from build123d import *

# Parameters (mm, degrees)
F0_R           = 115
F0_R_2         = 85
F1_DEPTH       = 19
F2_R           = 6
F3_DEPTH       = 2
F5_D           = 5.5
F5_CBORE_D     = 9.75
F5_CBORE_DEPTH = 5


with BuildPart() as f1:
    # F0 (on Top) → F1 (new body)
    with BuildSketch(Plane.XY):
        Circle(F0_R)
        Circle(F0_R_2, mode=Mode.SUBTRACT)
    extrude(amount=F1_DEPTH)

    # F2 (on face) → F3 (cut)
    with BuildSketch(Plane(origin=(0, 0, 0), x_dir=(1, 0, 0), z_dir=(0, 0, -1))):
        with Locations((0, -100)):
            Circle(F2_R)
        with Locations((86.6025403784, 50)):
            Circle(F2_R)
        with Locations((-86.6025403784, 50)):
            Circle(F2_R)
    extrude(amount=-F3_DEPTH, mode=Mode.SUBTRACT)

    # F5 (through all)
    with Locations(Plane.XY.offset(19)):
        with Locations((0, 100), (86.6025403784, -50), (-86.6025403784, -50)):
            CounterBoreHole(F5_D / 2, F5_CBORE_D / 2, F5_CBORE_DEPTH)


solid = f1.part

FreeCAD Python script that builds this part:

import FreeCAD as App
import Part
import Sketcher

doc = App.newDocument("Part")
params = doc.addObject("Spreadsheet::Sheet", "Params")
for row, (alias, value) in enumerate([
    ("sketch1_diameter", "230 mm"),
    ("sketch1_diameter2", "170 mm"),
    ("pad1_length", "19 mm"),
    ("sketch2_diameter", "12 mm"),
    ("pocket1_length", "2 mm"),
    ("sketch3_diameter", "5.5 mm"),
    ("hole_diameter", "5.5 mm"),
    ("hole_cbore_diameter", "9.75 mm"),
    ("hole_cbore_depth", "5 mm"),
], start=1):
    params.set(f"A{row}", alias)
    params.set(f"B{row}", "=" + value)
    params.setAlias(f"B{row}", alias)

body = doc.addObject("PartDesign::Body", "Body")

sketch1 = body.newObject("Sketcher::SketchObject", "Sketch")
sketch1.AttachmentSupport = (doc.getObject("XY_Plane"), [""])
sketch1.MapMode = "FlatFace"
sketch1.addGeometry([
    Part.Circle(App.Vector(0, 0, 0), App.Vector(0, 0, 1), 115),
    Part.Circle(App.Vector(0, 0, 0), App.Vector(0, 0, 1), 85),
], False)
sketch1.addConstraint([
    Sketcher.Constraint("Coincident", 0, 3, -1, 1),
    Sketcher.Constraint("Coincident", 1, 3, -1, 1),
    Sketcher.Constraint("Diameter", 0, 230.0),
    Sketcher.Constraint("Diameter", 1, 170.0),
])
sketch1.setExpression("Constraints[2]", "Params.sketch1_diameter")
sketch1.setExpression("Constraints[3]", "Params.sketch1_diameter2")
pad1 = body.newObject("PartDesign::Pad", "Pad")
pad1.Profile = sketch1
pad1.setExpression("Length", "Params.pad1_length")

sketch2 = body.newObject("Sketcher::SketchObject", "Sketch001")
sketch2.AttachmentSupport = (doc.getObject("XY_Plane"), [""])
sketch2.MapMode = "FlatFace"
sketch2.addGeometry([
    Part.Circle(App.Vector(0, 100, 0), App.Vector(0, 0, 1), 6),
    Part.Circle(App.Vector(87, -50, 0), App.Vector(0, 0, 1), 6),
    Part.Circle(App.Vector(-87, -50, 0), App.Vector(0, 0, 1), 6),
], False)
sketch2.addConstraint([
    Sketcher.Constraint("Equal", 0, 1),
    Sketcher.Constraint("Equal", 1, 2),
    Sketcher.Constraint("Symmetric", 1, 3, 2, 3, -2),
    Sketcher.Constraint("PointOnObject", 0, 3, -2),
    Sketcher.Constraint("Diameter", 0, 12.0),
    Sketcher.Constraint("DistanceY", -1, 1, 0, 3, 100.0),
    Sketcher.Constraint("DistanceY", 1, 3, -1, 1, 50.0),
    Sketcher.Constraint("DistanceX", -1, 1, 1, 3, 86.60254),
])
sketch2.setExpression("Constraints[4]", "Params.sketch2_diameter")
pocket1 = body.newObject("PartDesign::Pocket", "Pocket")
pocket1.Profile = sketch2
pocket1.setExpression("Length", "Params.pocket1_length")
pocket1.Reversed = True

sketch3 = body.newObject("Sketcher::SketchObject", "Sketch002")
sketch3.AttachmentSupport = (doc.getObject("XY_Plane"), [""])
sketch3.MapMode = "FlatFace"
sketch3.AttachmentOffset = App.Placement(App.Vector(0, 0, 19), App.Rotation())
sketch3.addGeometry([
    Part.Circle(App.Vector(0, 100, 0), App.Vector(0, 0, 1), 2.8),
    Part.Circle(App.Vector(86.6, -50, 0), App.Vector(0, 0, 1), 2.8),
    Part.Circle(App.Vector(-86.6, -50, 0), App.Vector(0, 0, 1), 2.8),
], False)
sketch3.addConstraint([
    Sketcher.Constraint("Equal", 0, 1),
    Sketcher.Constraint("Equal", 1, 2),
    Sketcher.Constraint("Symmetric", 1, 3, 2, 3, -2),
    Sketcher.Constraint("PointOnObject", 0, 3, -2),
    Sketcher.Constraint("Diameter", 0, 5.5),
    Sketcher.Constraint("DistanceY", -1, 1, 0, 3, 100.0),
    Sketcher.Constraint("DistanceY", 1, 3, -1, 1, 50.0),
    Sketcher.Constraint("DistanceX", -1, 1, 1, 3, 86.60254),
])
sketch3.setExpression("Constraints[4]", "Params.sketch3_diameter")
doc.recompute()
hole = body.newObject("PartDesign::Hole", "Hole")
hole.Profile = sketch3
hole.ThreadType = "None"
hole.setExpression("Diameter", "Params.hole_diameter")
hole.DepthType = "ThroughAll"
hole.HoleCutType = "Counterbore"
hole.setExpression("HoleCutDiameter", "Params.hole_cbore_diameter")
hole.setExpression("HoleCutDepth", "Params.hole_cbore_depth")

doc.recompute()
